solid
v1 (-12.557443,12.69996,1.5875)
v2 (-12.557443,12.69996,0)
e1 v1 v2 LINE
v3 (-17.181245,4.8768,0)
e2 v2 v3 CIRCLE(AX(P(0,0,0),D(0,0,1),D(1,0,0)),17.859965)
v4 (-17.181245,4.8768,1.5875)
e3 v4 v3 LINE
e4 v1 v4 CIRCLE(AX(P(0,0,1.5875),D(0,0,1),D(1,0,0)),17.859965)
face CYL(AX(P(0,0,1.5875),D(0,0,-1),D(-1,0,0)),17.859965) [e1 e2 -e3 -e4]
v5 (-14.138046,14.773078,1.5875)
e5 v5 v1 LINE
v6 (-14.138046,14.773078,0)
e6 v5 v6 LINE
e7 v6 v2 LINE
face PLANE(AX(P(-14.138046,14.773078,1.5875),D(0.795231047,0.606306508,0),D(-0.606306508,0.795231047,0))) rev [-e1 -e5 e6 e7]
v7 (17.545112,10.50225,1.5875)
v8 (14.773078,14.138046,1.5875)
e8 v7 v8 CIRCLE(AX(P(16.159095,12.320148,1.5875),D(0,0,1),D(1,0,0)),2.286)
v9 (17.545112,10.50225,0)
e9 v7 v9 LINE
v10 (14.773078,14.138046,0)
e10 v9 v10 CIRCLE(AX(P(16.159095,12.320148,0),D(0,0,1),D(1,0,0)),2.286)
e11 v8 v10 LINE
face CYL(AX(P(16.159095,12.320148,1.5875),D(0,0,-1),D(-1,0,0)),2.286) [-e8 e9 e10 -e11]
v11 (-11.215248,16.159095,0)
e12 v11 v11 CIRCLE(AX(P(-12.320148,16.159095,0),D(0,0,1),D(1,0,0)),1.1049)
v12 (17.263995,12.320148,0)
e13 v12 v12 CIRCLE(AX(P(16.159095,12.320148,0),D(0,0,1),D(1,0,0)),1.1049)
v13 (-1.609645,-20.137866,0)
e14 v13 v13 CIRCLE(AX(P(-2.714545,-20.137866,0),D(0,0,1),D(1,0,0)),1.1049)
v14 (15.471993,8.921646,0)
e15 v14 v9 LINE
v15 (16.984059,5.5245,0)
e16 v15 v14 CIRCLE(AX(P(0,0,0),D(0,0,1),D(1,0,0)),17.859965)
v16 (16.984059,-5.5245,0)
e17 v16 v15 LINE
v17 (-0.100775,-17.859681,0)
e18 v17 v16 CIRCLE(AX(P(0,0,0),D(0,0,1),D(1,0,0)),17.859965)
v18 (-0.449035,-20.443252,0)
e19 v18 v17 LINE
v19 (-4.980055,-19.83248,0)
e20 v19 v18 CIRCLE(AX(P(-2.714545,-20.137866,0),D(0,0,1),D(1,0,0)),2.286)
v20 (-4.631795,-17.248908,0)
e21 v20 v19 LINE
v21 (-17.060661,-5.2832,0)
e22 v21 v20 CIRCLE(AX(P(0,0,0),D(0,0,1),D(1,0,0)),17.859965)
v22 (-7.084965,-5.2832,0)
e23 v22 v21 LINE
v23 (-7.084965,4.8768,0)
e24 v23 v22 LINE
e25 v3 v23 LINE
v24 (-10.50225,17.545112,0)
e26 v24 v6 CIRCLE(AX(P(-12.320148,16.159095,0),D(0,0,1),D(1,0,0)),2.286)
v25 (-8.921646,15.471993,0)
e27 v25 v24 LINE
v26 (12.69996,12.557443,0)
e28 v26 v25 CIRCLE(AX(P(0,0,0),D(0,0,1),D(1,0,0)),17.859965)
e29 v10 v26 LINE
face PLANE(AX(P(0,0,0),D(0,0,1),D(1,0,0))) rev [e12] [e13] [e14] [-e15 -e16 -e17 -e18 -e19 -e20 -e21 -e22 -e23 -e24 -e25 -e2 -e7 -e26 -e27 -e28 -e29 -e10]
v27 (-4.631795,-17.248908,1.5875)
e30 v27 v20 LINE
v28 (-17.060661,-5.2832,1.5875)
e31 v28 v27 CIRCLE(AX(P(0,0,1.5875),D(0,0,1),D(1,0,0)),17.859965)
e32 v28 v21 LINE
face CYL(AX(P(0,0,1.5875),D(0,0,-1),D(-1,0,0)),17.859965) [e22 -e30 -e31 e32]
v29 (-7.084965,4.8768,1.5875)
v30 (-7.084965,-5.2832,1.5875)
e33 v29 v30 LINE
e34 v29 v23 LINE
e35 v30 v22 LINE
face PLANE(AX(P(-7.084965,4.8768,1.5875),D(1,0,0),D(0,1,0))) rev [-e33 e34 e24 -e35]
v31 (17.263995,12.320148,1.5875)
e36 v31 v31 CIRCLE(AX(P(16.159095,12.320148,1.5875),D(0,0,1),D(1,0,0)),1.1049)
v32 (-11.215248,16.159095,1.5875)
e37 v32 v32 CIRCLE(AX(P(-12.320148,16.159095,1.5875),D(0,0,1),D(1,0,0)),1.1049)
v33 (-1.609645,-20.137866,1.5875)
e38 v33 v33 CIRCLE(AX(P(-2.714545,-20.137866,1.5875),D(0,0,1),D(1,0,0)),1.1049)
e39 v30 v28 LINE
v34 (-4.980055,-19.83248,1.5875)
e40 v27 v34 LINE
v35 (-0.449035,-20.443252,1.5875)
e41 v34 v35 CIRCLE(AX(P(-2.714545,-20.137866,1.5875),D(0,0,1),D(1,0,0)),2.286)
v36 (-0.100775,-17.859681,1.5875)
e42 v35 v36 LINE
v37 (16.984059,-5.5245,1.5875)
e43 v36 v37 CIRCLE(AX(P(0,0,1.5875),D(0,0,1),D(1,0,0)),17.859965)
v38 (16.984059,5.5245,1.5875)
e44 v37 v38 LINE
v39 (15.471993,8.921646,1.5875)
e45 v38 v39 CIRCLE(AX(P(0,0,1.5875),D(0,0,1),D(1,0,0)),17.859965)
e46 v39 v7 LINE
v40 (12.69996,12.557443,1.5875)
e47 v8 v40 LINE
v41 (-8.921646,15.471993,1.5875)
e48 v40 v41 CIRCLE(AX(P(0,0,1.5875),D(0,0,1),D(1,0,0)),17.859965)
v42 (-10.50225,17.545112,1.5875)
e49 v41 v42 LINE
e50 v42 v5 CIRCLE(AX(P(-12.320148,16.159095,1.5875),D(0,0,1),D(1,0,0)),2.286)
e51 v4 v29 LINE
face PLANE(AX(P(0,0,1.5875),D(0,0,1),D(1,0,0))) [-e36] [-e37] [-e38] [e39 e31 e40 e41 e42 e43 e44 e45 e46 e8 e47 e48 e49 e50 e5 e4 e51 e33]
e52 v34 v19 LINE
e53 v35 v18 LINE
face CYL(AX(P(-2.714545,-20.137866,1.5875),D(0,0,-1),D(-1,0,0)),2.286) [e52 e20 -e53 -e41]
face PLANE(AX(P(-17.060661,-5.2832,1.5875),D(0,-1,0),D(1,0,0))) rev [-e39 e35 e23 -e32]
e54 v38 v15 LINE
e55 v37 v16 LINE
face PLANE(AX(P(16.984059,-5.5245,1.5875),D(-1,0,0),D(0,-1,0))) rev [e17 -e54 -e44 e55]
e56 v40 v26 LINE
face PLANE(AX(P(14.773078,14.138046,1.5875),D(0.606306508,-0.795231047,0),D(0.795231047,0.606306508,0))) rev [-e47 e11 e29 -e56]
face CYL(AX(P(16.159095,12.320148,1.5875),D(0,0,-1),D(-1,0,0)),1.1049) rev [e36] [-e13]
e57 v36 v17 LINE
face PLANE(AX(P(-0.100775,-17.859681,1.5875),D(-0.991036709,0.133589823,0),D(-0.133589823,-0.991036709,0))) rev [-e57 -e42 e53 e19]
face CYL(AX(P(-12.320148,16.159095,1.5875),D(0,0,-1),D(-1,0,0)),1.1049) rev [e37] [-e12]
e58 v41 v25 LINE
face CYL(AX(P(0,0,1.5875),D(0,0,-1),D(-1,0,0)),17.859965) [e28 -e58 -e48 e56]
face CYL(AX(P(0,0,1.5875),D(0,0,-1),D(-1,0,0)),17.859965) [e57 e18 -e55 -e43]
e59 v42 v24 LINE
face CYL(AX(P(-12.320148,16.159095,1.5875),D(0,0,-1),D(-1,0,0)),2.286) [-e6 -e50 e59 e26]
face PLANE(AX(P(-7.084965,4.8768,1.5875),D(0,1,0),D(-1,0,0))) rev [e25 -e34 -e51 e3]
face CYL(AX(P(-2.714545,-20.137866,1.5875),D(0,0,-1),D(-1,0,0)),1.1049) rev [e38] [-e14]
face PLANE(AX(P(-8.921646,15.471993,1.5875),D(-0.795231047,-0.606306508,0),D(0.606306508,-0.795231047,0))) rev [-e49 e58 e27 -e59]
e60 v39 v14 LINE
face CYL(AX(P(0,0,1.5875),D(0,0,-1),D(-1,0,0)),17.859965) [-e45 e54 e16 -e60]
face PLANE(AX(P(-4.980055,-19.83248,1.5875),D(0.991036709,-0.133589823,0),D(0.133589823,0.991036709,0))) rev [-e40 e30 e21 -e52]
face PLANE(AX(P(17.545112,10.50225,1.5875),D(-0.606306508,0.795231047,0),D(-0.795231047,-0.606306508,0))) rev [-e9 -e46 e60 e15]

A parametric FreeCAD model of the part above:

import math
import FreeCAD as App
import Part
import Sketcher
Q = App.Units.Quantity

doc = App.newDocument("Part")
params = doc.addObject("Spreadsheet::Sheet", "Params")
for row, (alias, value) in enumerate([
    ("sketch1_radius", "0.09 in"),
    ("sketch1_diameter", "0.087 in"),
    ("sketch1_height", "0.4 in"),
    ("sketch1_height2", "0.435 in"),
    ("pad1_length", "0.0625 in"),
], start=1):
    params.set(f"A{row}", alias)
    params.set(f"B{row}", "=" + value)
    params.setAlias(f"B{row}", alias)

body = doc.addObject("PartDesign::Body", "Body")

sketch1 = body.newObject("Sketcher::SketchObject", "Sketch")
sketch1.AttachmentSupport = (doc.getObject("XY_Plane"), [""])
sketch1.MapMode = "FlatFace"
sketch1.addGeometry(Part.LineSegment(App.Vector(-17.2, 4.9, 0), App.Vector(-7.1, 4.9, 0)), False)
sketch1.addGeometry(Part.LineSegment(App.Vector(-7.1, 4.9, 0), App.Vector(-7.1, -5.3, 0)), False)
sketch1.addGeometry(Part.LineSegment(App.Vector(-7.1, -5.3, 0), App.Vector(-17.1, -5.3, 0)), False)
sketch1.addGeometry(Part.ArcOfCircle(Part.Circle(App.Vector(0, 0, 0), App.Vector(0, 0, 1), 17.9), math.radians(-163), math.radians(-105)), False)
sketch1.addGeometry(Part.LineSegment(App.Vector(-4.6, -17.2, 0), App.Vector(-5, -19.8, 0)), False)
sketch1.addGeometry(Part.ArcOfCircle(Part.Circle(App.Vector(-2.7, -20.1, 0), App.Vector(0, 0, 1), 2.3), math.radians(172), math.radians(352)), False)
sketch1.addGeometry(Part.LineSegment(App.Vector(-0.4, -20.4, 0), App.Vector(-0.1, -17.9, 0)), False)
sketch1.addGeometry(Part.ArcOfCircle(Part.Circle(App.Vector(0, 0, 0), App.Vector(0, 0, 1), 17.9), math.radians(-90), math.radians(-18)), False)
sketch1.addGeometry(Part.LineSegment(App.Vector(17, -5.5, 0), App.Vector(17, 5.5, 0)), False)
sketch1.addGeometry(Part.ArcOfCircle(Part.Circle(App.Vector(0, 0, 0), App.Vector(0, 0, 1), 17.9), math.radians(18.02), math.radians(29.97)), False)
sketch1.addGeometry(Part.LineSegment(App.Vector(15.5, 8.9, 0), App.Vector(17.5, 10.5, 0)), False)
sketch1.addGeometry(Part.ArcOfCircle(Part.Circle(App.Vector(16.2, 12.3, 0), App.Vector(0, 0, 1), 2.3), math.radians(-53), math.radians(127)), False)
sketch1.addGeometry(Part.LineSegment(App.Vector(14.8, 14.1, 0), App.Vector(12.7, 12.6, 0)), False)
sketch1.addGeometry(Part.ArcOfCircle(Part.Circle(App.Vector(0, 0, 0), App.Vector(0, 0, 1), 17.9), math.radians(45), math.radians(120)), False)
sketch1.addGeometry(Part.LineSegment(App.Vector(-8.9, 15.5, 0), App.Vector(-10.5, 17.5, 0)), False)
sketch1.addGeometry(Part.ArcOfCircle(Part.Circle(App.Vector(-12.3, 16.2, 0), App.Vector(0, 0, 1), 2.3), math.radians(37), math.radians(217)), False)
sketch1.addGeometry(Part.LineSegment(App.Vector(-14.1, 14.8, 0), App.Vector(-12.6, 12.7, 0)), False)
sketch1.addGeometry(Part.ArcOfCircle(Part.Circle(App.Vector(0, 0, 0), App.Vector(0, 0, 1), 17.9), math.radians(135), math.radians(164)), False)
sketch1.addGeometry(Part.Circle(App.Vector(-2.7, -20.1, 0), App.Vector(0, 0, 1), 1.1), False)
sketch1.addGeometry(Part.Circle(App.Vector(16.2, 12.3, 0), App.Vector(0, 0, 1), 1.1), False)
sketch1.addGeometry(Part.Circle(App.Vector(-12.3, 16.2, 0), App.Vector(0, 0, 1), 1.1), False)
sketch1.addConstraint(Sketcher.Constraint("Coincident", 0, 2, 1, 1))
sketch1.addConstraint(Sketcher.Constraint("Coincident", 1, 2, 2, 1))
sketch1.addConstraint(Sketcher.Constraint("Coincident", 2, 2, 3, 1))
sketch1.addConstraint(Sketcher.Constraint("Coincident", 3, 2, 4, 1))
sketch1.addConstraint(Sketcher.Constraint("Tangent", 4, 2, 5, 1))
sketch1.addConstraint(Sketcher.Constraint("Tangent", 5, 2, 6, 1))
sketch1.addConstraint(Sketcher.Constraint("Coincident", 6, 2, 7, 1))
sketch1.addConstraint(Sketcher.Constraint("Coincident", 7, 2, 8, 1))
sketch1.addConstraint(Sketcher.Constraint("Coincident", 8, 2, 9, 1))
sketch1.addConstraint(Sketcher.Constraint("Coincident", 9, 2, 10, 1))
sketch1.addConstraint(Sketcher.Constraint("Tangent", 10, 2, 11, 1))
sketch1.addConstraint(Sketcher.Constraint("Tangent", 11, 2, 12, 1))
sketch1.addConstraint(Sketcher.Constraint("Coincident", 12, 2, 13, 1))
sketch1.addConstraint(Sketcher.Constraint("Coincident", 13, 2, 14, 1))
sketch1.addConstraint(Sketcher.Constraint("Tangent", 14, 2, 15, 1))
sketch1.addConstraint(Sketcher.Constraint("Tangent", 15, 2, 16, 1))
sketch1.addConstraint(Sketcher.Constraint("Coincident", 16, 2, 17, 1))
sketch1.addConstraint(Sketcher.Constraint("Coincident", 17, 2, 0, 1))
sketch1.addConstraint(Sketcher.Constraint("Horizontal", 0))
sketch1.addConstraint(Sketcher.Constraint("Vertical", 1))
sketch1.addConstraint(Sketcher.Constraint("Horizontal", 2))
sketch1.addConstraint(Sketcher.Constraint("Vertical", 8))
sketch1.addConstraint(Sketcher.Constraint("Coincident", 3, 3, -1, 1))
sketch1.addConstraint(Sketcher.Constraint("Coincident", 7, 3, -1, 1))
sketch1.addConstraint(Sketcher.Constraint("Coincident", 9, 3, -1, 1))
sketch1.addConstraint(Sketcher.Constraint("Coincident", 13, 3, -1, 1))
sketch1.addConstraint(Sketcher.Constraint("Coincident", 17, 3, -1, 1))
sketch1.addConstraint(Sketcher.Constraint("Coincident", 18, 3, 5, 3))
sketch1.addConstraint(Sketcher.Constraint("Coincident", 19, 3, 11, 3))
sketch1.addConstraint(Sketcher.Constraint("Coincident", 20, 3, 15, 3))
sketch1.addConstraint(Sketcher.Constraint("Equal", 3, 7))
sketch1.addConstraint(Sketcher.Constraint("Equal", 7, 9))
sketch1.addConstraint(Sketcher.Constraint("Equal", 5, 11))
sketch1.addConstraint(Sketcher.Constraint("Equal", 9, 13))
sketch1.addConstraint(Sketcher.Constraint("Equal", 11, 15))
sketch1.addConstraint(Sketcher.Constraint("Equal", 13, 17))
sketch1.addConstraint(Sketcher.Constraint("Equal", 18, 19))
sketch1.addConstraint(Sketcher.Constraint("Equal", 19, 20))
sketch1.addConstraint(Sketcher.Constraint("Parallel", 4, 6))
sketch1.addConstraint(Sketcher.Constraint("Parallel", 10, 12))
sketch1.addConstraint(Sketcher.Constraint("Perpendicular", 12, 14))
sketch1.addConstraint(Sketcher.Constraint("Parallel", 14, 16))
sketch1.addConstraint(Sketcher.Constraint("Equal", 4, 6))
sketch1.addConstraint(Sketcher.Constraint("Equal", 6, 10))
sketch1.addConstraint(Sketcher.Constraint("Equal", 10, 12))
sketch1.addConstraint(Sketcher.Constraint("Equal", 12, 14))
sketch1.addConstraint(Sketcher.Constraint("Equal", 14, 16))
sketch1.addConstraint(Sketcher.Constraint("Radius", 5, Q("0.09 in")))
sketch1.addConstraint(Sketcher.Constraint("Diameter", 18, Q("0.087 in")))
sketch1.addConstraint(Sketcher.Constraint("DistanceY", 1, 2, 1, 1, Q("0.4 in")))
sketch1.addConstraint(Sketcher.Constraint("DistanceY", 8, 1, 8, 2, Q("0.435 in")))
sketch1.addConstraint(Sketcher.Constraint("DistanceY", -1, 1, 0, 2, Q("0.192 in")))
sketch1.addConstraint(Sketcher.Constraint("Radius", 3, 17.859965))
sketch1.addConstraint(Sketcher.Constraint("DistanceX", 0, 1, 0, 2, 10.096279))
sketch1.addConstraint(Sketcher.Constraint("DistanceY", 4, 2, 6, 2, 1.972799))
sketch1.addConstraint(Sketcher.Constraint("DistanceX", 9, 2, 11, 3, 0.687102))
sketch1.addConstraint(Sketcher.Constraint("DistanceY", 9, 2, 11, 3, 3.398502))
sketch1.setExpression("Constraints[47]", "Params.sketch1_radius")
sketch1.setExpression("Constraints[48]", "Params.sketch1_diameter")
sketch1.setExpression("Constraints[49]", "Params.sketch1_height")
sketch1.setExpression("Constraints[50]", "Params.sketch1_height2")
pad1 = body.newObject("PartDesign::Pad", "Pad")
pad1.Profile = sketch1
pad1.setExpression("Length", "Params.pad1_length")

doc.recompute()
